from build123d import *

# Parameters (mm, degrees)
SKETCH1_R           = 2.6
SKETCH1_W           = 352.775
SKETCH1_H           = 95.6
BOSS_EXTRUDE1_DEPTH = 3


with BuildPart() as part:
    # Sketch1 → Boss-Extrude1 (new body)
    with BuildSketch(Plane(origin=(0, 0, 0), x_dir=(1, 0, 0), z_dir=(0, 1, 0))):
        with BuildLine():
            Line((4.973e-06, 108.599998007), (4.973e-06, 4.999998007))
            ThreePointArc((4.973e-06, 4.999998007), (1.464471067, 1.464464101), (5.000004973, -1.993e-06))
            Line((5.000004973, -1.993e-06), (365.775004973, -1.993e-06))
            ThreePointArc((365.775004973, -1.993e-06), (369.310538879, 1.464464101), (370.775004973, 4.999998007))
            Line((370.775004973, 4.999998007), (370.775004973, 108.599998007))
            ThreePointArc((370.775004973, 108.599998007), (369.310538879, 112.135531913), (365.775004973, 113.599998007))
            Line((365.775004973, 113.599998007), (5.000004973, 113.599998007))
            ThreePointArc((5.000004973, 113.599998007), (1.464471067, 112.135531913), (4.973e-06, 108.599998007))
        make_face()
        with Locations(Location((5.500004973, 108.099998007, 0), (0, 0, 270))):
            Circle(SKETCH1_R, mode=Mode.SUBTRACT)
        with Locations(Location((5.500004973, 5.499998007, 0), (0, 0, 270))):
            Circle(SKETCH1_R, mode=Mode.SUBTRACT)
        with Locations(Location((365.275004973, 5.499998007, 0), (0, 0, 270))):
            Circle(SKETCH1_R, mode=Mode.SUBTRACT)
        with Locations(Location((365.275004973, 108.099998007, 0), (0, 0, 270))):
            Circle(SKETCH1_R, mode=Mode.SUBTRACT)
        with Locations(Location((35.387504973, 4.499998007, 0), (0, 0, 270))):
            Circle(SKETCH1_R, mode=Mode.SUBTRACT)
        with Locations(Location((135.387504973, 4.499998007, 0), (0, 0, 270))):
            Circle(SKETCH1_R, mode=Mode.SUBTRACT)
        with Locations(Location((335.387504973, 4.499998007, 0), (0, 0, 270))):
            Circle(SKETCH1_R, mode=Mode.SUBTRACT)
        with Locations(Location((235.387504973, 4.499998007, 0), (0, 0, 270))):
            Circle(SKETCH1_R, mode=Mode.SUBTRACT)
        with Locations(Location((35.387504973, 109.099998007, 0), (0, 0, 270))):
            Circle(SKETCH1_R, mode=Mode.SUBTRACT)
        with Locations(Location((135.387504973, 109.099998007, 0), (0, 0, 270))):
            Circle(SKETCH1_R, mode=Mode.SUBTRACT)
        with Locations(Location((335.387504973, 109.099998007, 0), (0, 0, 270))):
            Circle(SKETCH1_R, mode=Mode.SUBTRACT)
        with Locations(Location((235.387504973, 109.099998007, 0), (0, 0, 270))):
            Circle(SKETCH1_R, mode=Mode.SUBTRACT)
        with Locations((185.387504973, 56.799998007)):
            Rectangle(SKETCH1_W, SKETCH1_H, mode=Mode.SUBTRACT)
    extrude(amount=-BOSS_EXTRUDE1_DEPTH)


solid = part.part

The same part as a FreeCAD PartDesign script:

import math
import FreeCAD as App
import Part
import Sketcher

V = App.Vector
Q = App.Units.Quantity


def add_polygon(sketch, points):
    """Adds a closed chain of lines whose ends are joined by coincident constraints."""
    first, n = sketch.GeometryCount, len(points)
    for a, b in zip(points, points[1:] + points[:1]):
        sketch.addGeometry(Part.LineSegment(App.Vector(*a, 0), App.Vector(*b, 0)), False)
    for i in range(n):
        sketch.addConstraint(Sketcher.Constraint("Coincident", first + i, 2, first + (i + 1) % n, 1))

doc = App.newDocument("Part")
body = doc.addObject("PartDesign::Body", "Body")

# Sketch on XZ plane
sketch1 = body.newObject("Sketcher::SketchObject", "Sketch")
sketch1.AttachmentSupport = (doc.getObject("XZ_Plane"), [""])
sketch1.MapMode = "FlatFace"
sketch1.addGeometry(Part.LineSegment(V(0.000005, -108.599998, 0), V(0.000005, -4.999998, 0)), False)  # 0
sketch1.addGeometry(Part.ArcOfCircle(Part.Circle(V(5.000005, -4.999998, 0), V(0, 0, 1), 5), math.radians(90), math.radians(180)), False)  # 1
sketch1.addGeometry(Part.LineSegment(V(5.000005, 0.000002, 0), V(365.775005, 0.000002, 0)), False)  # 2
sketch1.addGeometry(Part.ArcOfCircle(Part.Circle(V(365.775005, -4.999998, 0), V(0, 0, 1), 5), math.radians(0), math.radians(90)), False)  # 3
sketch1.addGeometry(Part.LineSegment(V(370.775005, -4.999998, 0), V(370.775005, -108.599998, 0)), False)  # 4
sketch1.addGeometry(Part.ArcOfCircle(Part.Circle(V(365.775005, -108.599998, 0), V(0, 0, 1), 5), math.radians(-90), math.radians(0)), False)  # 5
sketch1.addGeometry(Part.LineSegment(V(365.775005, -113.599998, 0), V(5.000005, -113.599998, 0)), False)  # 6
sketch1.addGeometry(Part.ArcOfCircle(Part.Circle(V(5.000005, -108.599998, 0), V(0, 0, 1), 5), math.radians(180), math.radians(270)), False)  # 7
sketch1.addGeometry(Part.Circle(V(5.500005, -5.499998, 0), V(0, 0, 1), 2.6), False)  # 8
sketch1.addGeometry(Part.Circle(V(35.387505, -4.499998, 0), V(0, 0, 1), 2.6), False)  # 9
sketch1.addGeometry(Part.Circle(V(135.387505, -4.499998, 0), V(0, 0, 1), 2.6), False)  # 10
sketch1.addGeometry(Part.Circle(V(235.387505, -4.499998, 0), V(0, 0, 1), 2.6), False)  # 11
sketch1.addGeometry(Part.Circle(V(335.387505, -4.499998, 0), V(0, 0, 1), 2.6), False)  # 12
sketch1.addGeometry(Part.Circle(V(365.275005, -5.499998, 0), V(0, 0, 1), 2.6), False)  # 13
sketch1.addGeometry(Part.Circle(V(5.500005, -108.099998, 0), V(0, 0, 1), 2.6), False)  # 14
sketch1.addGeometry(Part.Circle(V(35.387505, -109.099998, 0), V(0, 0, 1), 2.6), False)  # 15
sketch1.addGeometry(Part.Circle(V(135.387505, -109.099998, 0), V(0, 0, 1), 2.6), False)  # 16
add_polygon(sketch1, [(361.775005, -8.999998), (9.000005, -8.999998), (9.000005, -104.599998), (361.775005, -104.599998)])  # lines 17-20
sketch1.addGeometry(Part.Circle(V(235.387505, -109.099998, 0), V(0, 0, 1), 2.6), False)  # 21
sketch1.addGeometry(Part.Circle(V(335.387505, -109.099998, 0), V(0, 0, 1), 2.6), False)  # 22
sketch1.addGeometry(Part.Circle(V(365.275005, -108.099998, 0), V(0, 0, 1), 2.6), False)  # 23
sketch1.addConstraint(Sketcher.Constraint("Tangent", 0, 2, 1, 2))
sketch1.addConstraint(Sketcher.Constraint("Tangent", 1, 1, 2, 1))
sketch1.addConstraint(Sketcher.Constraint("Tangent", 2, 2, 3, 2))
sketch1.addConstraint(Sketcher.Constraint("Tangent", 3, 1, 4, 1))
sketch1.addConstraint(Sketcher.Constraint("Tangent", 4, 2, 5, 2))
sketch1.addConstraint(Sketcher.Constraint("Tangent", 5, 1, 6, 1))
sketch1.addConstraint(Sketcher.Constraint("Tangent", 6, 2, 7, 2))
sketch1.addConstraint(Sketcher.Constraint("Tangent", 7, 1, 0, 1))
sketch1.addConstraint(Sketcher.Constraint("Vertical", 0))
sketch1.addConstraint(Sketcher.Constraint("Horizontal", 2))
sketch1.addConstraint(Sketcher.Constraint("Vertical", 4))
sketch1.addConstraint(Sketcher.Constraint("Horizontal", 6))
sketch1.addConstraint(Sketcher.Constraint("Horizontal", 17))
sketch1.addConstraint(Sketcher.Constraint("Vertical", 18))
sketch1.addConstraint(Sketcher.Constraint("Horizontal", 19))
sketch1.addConstraint(Sketcher.Constraint("Vertical", 20))
sketch1.addConstraint(Sketcher.Constraint("Equal", 1, 3))
sketch1.addConstraint(Sketcher.Constraint("Equal", 3, 5))
sketch1.addConstraint(Sketcher.Constraint("Equal", 5, 7))
sketch1.addConstraint(Sketcher.Constraint("Equal", 8, 9))
sketch1.addConstraint(Sketcher.Constraint("Equal", 9, 10))
sketch1.addConstraint(Sketcher.Constraint("Equal", 10, 11))
sketch1.addConstraint(Sketcher.Constraint("Equal", 11, 12))
sketch1.addConstraint(Sketcher.Constraint("Equal", 12, 13))
sketch1.addConstraint(Sketcher.Constraint("Equal", 13, 14))
sketch1.addConstraint(Sketcher.Constraint("Equal", 14, 15))
sketch1.addConstraint(Sketcher.Constraint("Equal", 15, 16))
sketch1.addConstraint(Sketcher.Constraint("Equal", 16, 21))
sketch1.addConstraint(Sketcher.Constraint("Equal", 21, 22))
sketch1.addConstraint(Sketcher.Constraint("Equal", 22, 23))
sketch1.addConstraint(Sketcher.Constraint("PointOnObject", 1, 1, -1))
sketch1.addConstraint(Sketcher.Constraint("Horizontal", 9, 3, 10, 3))
sketch1.addConstraint(Sketcher.Constraint("Horizontal", 10, 3, 11, 3))
sketch1.addConstraint(Sketcher.Constraint("Horizontal", 11, 3, 12, 3))
sketch1.addConstraint(Sketcher.Constraint("Horizontal", 8, 3, 13, 3))
sketch1.addConstraint(Sketcher.Constraint("Horizontal", 15, 3, 16, 3))
sketch1.addConstraint(Sketcher.Constraint("Horizontal", 16, 3, 21, 3))
sketch1.addConstraint(Sketcher.Constraint("Horizontal", 21, 3, 22, 3))
sketch1.addConstraint(Sketcher.Constraint("Horizontal", 14, 3, 23, 3))
sketch1.addConstraint(Sketcher.Constraint("Vertical", 8, 3, 14, 3))
sketch1.addConstraint(Sketcher.Constraint("Vertical", 9, 3, 15, 3))
sketch1.addConstraint(Sketcher.Constraint("Vertical", 10, 3, 16, 3))
sketch1.addConstraint(Sketcher.Constraint("Vertical", 11, 3, 21, 3))
sketch1.addConstraint(Sketcher.Constraint("Vertical", 12, 3, 22, 3))
sketch1.addConstraint(Sketcher.Constraint("Vertical", 13, 3, 23, 3))
sketch1.addConstraint(Sketcher.Constraint("Radius", 1, Q("5 mm")))
sketch1.addConstraint(Sketcher.Constraint("Diameter", 8, Q("5.2 mm")))
sketch1.addConstraint(Sketcher.Constraint("DistanceY", 0, 1, 0, 2, Q("103.6 mm")))
sketch1.addConstraint(Sketcher.Constraint("DistanceY", 18, 2, 18, 1, Q("95.6 mm")))
sketch1.addConstraint(Sketcher.Constraint("DistanceY", 17, 2, -1, 1, Q("8.999998 mm")))
sketch1.addConstraint(Sketcher.Constraint("DistanceY", 8, 3, 9, 3, Q("1 mm")))
sketch1.addConstraint(Sketcher.Constraint("DistanceX", 9, 3, 10, 3, Q("100 mm")))
sketch1.addConstraint(Sketcher.Constraint("DistanceX", 10, 3, 11, 3, Q("100 mm")))
sketch1.addConstraint(Sketcher.Constraint("DistanceX", 11, 3, 12, 3, Q("100 mm")))
sketch1.addConstraint(Sketcher.Constraint("DistanceY", 15, 3, 14, 3, Q("1 mm")))
sketch1.addConstraint(Sketcher.Constraint("DistanceX", 1, 3, 17, 2, Q("4 mm")))
sketch1.addConstraint(Sketcher.Constraint("DistanceX", 19, 2, 5, 3, Q("4 mm")))
sketch1.addConstraint(Sketcher.Constraint("DistanceY", 8, 3, -1, 1, Q("5.499998 mm")))
sketch1.addConstraint(Sketcher.Constraint("DistanceY", 14, 3, -1, 1, Q("108.099998 mm")))
sketch1.addConstraint(Sketcher.Constraint("DistanceX", 1, 3, 8, 3, Q("0.5 mm")))
sketch1.addConstraint(Sketcher.Constraint("DistanceX", 13, 3, 3, 3, Q("0.5 mm")))
sketch1.addConstraint(Sketcher.Constraint("DistanceX", 2, 1, 2, 2, Q("360.775 mm")))
sketch1.addConstraint(Sketcher.Constraint("DistanceX", 8, 3, 9, 3, Q("29.8875 mm")))
sketch1.addConstraint(Sketcher.Constraint("DistanceX", -1, 1, 1, 3, Q("5.000005 mm")))
pad1 = body.newObject("PartDesign::Pad", "Pad")
pad1.Profile = sketch1
pad1.Length = 3

doc.recompute()
